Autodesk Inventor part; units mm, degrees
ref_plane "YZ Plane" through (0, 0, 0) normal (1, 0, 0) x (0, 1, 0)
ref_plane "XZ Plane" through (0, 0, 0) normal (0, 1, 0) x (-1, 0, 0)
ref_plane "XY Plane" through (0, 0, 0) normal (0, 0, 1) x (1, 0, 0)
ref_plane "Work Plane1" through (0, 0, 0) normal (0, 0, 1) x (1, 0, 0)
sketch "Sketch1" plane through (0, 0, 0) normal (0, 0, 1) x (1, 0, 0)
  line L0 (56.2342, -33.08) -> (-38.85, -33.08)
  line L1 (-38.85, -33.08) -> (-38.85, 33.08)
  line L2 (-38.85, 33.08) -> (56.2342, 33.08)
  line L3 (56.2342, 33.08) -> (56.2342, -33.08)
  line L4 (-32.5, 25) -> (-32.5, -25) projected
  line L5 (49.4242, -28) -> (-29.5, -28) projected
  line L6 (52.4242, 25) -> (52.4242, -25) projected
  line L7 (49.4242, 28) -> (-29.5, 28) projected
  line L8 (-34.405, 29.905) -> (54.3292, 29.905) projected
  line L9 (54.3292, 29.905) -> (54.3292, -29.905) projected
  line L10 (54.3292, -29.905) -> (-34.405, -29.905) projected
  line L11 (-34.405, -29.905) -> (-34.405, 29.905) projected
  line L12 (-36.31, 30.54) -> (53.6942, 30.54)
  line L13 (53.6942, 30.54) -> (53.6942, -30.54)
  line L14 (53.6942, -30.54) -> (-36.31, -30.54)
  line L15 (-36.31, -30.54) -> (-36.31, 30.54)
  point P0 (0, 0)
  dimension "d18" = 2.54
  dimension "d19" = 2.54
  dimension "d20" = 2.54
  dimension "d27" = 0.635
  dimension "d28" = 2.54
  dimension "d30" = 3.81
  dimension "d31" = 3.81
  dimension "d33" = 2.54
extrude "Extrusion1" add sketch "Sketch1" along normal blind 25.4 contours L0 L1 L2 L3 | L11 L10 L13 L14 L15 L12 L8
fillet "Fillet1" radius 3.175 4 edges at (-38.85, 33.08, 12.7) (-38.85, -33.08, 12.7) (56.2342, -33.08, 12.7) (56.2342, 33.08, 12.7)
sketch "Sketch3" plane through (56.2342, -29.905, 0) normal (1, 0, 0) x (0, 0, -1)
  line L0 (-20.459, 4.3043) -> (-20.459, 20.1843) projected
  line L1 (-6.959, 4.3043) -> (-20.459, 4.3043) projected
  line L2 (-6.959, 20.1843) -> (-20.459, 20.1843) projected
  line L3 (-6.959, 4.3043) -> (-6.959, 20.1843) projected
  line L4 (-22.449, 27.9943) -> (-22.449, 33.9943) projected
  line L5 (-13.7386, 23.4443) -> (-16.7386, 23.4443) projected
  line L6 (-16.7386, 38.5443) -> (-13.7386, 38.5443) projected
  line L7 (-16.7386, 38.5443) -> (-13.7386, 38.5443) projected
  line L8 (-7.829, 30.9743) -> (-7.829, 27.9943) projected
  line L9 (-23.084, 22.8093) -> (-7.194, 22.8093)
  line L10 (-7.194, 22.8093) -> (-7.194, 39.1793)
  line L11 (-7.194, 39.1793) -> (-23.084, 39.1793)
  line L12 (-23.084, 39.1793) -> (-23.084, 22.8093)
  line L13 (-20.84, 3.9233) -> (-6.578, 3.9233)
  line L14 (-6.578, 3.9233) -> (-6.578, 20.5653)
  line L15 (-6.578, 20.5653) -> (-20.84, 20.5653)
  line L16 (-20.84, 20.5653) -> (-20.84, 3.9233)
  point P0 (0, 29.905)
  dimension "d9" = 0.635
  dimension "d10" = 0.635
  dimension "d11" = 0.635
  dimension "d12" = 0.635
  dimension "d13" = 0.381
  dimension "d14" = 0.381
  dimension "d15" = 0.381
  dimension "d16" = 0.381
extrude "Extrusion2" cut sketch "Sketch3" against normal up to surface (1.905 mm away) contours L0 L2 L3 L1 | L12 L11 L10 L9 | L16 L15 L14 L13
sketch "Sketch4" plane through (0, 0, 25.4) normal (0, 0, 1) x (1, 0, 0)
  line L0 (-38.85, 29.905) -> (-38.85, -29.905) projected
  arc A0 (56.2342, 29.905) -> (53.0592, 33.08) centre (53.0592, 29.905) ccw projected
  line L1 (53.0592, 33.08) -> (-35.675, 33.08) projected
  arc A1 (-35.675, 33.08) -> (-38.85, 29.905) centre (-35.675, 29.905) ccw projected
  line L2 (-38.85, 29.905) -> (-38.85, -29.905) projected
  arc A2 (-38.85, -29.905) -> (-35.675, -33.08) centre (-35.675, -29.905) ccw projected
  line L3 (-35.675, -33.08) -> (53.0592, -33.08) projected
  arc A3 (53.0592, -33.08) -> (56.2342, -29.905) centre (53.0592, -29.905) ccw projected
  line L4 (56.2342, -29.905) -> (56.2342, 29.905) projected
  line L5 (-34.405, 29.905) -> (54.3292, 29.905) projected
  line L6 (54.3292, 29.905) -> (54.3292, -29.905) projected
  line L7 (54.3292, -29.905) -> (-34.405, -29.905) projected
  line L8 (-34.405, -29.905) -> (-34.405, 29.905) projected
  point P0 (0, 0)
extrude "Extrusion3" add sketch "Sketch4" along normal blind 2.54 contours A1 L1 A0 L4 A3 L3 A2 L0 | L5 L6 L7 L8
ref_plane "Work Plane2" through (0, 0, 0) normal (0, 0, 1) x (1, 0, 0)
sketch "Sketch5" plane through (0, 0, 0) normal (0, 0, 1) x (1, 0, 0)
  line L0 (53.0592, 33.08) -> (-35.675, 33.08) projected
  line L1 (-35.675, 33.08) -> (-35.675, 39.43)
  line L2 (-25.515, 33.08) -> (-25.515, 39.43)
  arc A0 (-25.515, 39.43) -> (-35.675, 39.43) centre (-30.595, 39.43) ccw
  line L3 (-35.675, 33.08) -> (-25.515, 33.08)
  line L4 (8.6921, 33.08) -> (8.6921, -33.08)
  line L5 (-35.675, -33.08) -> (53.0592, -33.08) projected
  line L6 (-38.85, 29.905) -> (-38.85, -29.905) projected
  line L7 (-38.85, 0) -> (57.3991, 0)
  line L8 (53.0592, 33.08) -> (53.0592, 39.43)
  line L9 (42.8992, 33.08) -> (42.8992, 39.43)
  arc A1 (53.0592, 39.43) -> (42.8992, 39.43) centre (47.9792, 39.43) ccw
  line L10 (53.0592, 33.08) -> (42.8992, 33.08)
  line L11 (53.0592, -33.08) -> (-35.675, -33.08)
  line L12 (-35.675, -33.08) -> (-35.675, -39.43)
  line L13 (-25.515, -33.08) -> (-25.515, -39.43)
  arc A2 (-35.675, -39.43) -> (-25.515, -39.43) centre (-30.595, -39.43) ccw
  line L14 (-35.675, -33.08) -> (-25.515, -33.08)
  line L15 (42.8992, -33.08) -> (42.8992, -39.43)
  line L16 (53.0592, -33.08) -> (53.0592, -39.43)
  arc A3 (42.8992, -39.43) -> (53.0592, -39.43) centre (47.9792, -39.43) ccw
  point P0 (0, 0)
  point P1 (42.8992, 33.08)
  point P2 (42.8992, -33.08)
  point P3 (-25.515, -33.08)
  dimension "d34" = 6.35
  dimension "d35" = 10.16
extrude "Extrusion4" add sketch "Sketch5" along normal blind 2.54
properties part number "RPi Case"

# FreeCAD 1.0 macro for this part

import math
import FreeCAD as App
import Part
import Sketcher

V = App.Vector
Q = App.Units.Quantity


def edges_at(feature, points):
    """Names of the edges that pass closest to the given points."""
    edges = feature.Shape.Edges
    near = lambda p: min(range(len(edges)), key=lambda i: edges[i].distToShape(Part.Vertex(*p))[0])
    return sorted({f"Edge{near(p) + 1}" for p in points})

doc = App.newDocument("Part")
params = doc.addObject("Spreadsheet::Sheet", "Params")
for row, (alias, value) in enumerate([
    ("pad1_length", "1 in"),
    ("fillet_radius", "0.125 in"),
    ("pocket1_length", "0.075 in"),
    ("sketch3_radius", "0.125 in"),
    ("pad2_length", "0.1 in"),
    ("sketch4_radius", "0.2 in"),
    ("sketch4_height", "0.25 in"),
    ("pad3_length", "0.1 in"),
], start=1):
    params.set(f"A{row}", alias)
    params.set(f"B{row}", "=" + value)
    params.setAlias(f"B{row}", alias)

body = doc.addObject("PartDesign::Body", "Body")

# Sketch on XY plane
sketch1 = doc.addObject("Sketcher::SketchObject", "Sketch")
body.addObject(sketch1)
sketch1.AttachmentSupport = (doc.XY_Plane, [""])
sketch1.MapMode = "FlatFace"
sketch1.addGeometry([
    Part.LineSegment(V(-39, -33, 0), V(56, -33, 0)),  # 0
    Part.LineSegment(V(56, -33, 0), V(56, 33, 0)),  # 1
    Part.LineSegment(V(56, 33, 0), V(-39, 33, 0)),  # 2
    Part.LineSegment(V(-39, 33, 0), V(-39, -33, 0)),  # 3
    Part.LineSegment(V(54, -30, 0), V(-34, -30, 0)),  # 4
    Part.LineSegment(V(-34, -30, 0), V(-34, 30, 0)),  # 5
    Part.LineSegment(V(-34, 30, 0), V(54, 30, 0)),  # 6
    Part.LineSegment(V(54, 30, 0), V(54, -30, 0)),  # 7
], False)
sketch1.addConstraint([
    Sketcher.Constraint("Coincident", 0, 2, 1, 1),
    Sketcher.Constraint("Coincident", 1, 2, 2, 1),
    Sketcher.Constraint("Coincident", 2, 2, 3, 1),
    Sketcher.Constraint("Coincident", 3, 2, 0, 1),
    Sketcher.Constraint("Coincident", 4, 2, 5, 1),
    Sketcher.Constraint("Coincident", 5, 2, 6, 1),
    Sketcher.Constraint("Coincident", 6, 2, 7, 1),
    Sketcher.Constraint("Coincident", 7, 2, 4, 1),
    Sketcher.Constraint("Horizontal", 0),
    Sketcher.Constraint("Vertical", 1),
    Sketcher.Constraint("Horizontal", 2),
    Sketcher.Constraint("Vertical", 3),
    Sketcher.Constraint("Horizontal", 4),
    Sketcher.Constraint("Vertical", 5),
    Sketcher.Constraint("Horizontal", 6),
    Sketcher.Constraint("Vertical", 7),
    Sketcher.Constraint("DistanceX", 3, 2, 4, 2, Q("0.175 in")),
    Sketcher.Constraint("DistanceY", 3, 2, 4, 2, Q("0.125 in")),
    Sketcher.Constraint("DistanceY", 5, 2, 2, 2, Q("0.125 in")),
    Sketcher.Constraint("DistanceX", 6, 2, 1, 2, Q("0.075 in")),
    Sketcher.Constraint("DistanceX", 0, 1, 0, 2, 95.0842),
    Sketcher.Constraint("DistanceY", 1, 1, 1, 2, 66.16),
    Sketcher.Constraint("DistanceX", -1, 1, 0, 2, 56.2342),
    Sketcher.Constraint("DistanceY", 0, 2, -1, 1, 33.08),
])
pad1 = doc.addObject("PartDesign::Pad", "Pad")
body.addObject(pad1)
pad1.Profile = sketch1
pad1.setExpression("Length", "Params.pad1_length")
doc.recompute()

fillet = doc.addObject("PartDesign::Fillet", "Fillet")
body.addObject(fillet)
fillet.Base = (pad1, edges_at(pad1, [
    (-38.85, 33.08, 12.7),
    (-38.85, -33.08, 12.7),
    (56.234, -33.08, 12.7),
    (56.234, 33.08, 12.7),
]))
fillet.setExpression("Radius", "Params.fillet_radius")

# Sketch on YZ plane
sketch2 = doc.addObject("Sketcher::SketchObject", "Sketch001")
body.addObject(sketch2)
sketch2.AttachmentSupport = (doc.YZ_Plane, [""])
sketch2.MapMode = "FlatFace"
sketch2.AttachmentOffset = App.Placement(V(0, 0, 56.2342), App.Rotation())
sketch2.addGeometry([
    Part.LineSegment(V(-9, 21, 0), V(-26, 21, 0)),  # 0
    Part.LineSegment(V(-26, 21, 0), V(-26, 7, 0)),  # 1
    Part.LineSegment(V(-26, 7, 0), V(-9, 7, 0)),  # 2
    Part.LineSegment(V(-9, 7, 0), V(-9, 21, 0)),  # 3
    Part.LineSegment(V(9, 23, 0), V(-7, 23, 0)),  # 4
    Part.LineSegment(V(-7, 23, 0), V(-7, 7, 0)),  # 5
    Part.LineSegment(V(-7, 7, 0), V(9, 7, 0)),  # 6
    Part.LineSegment(V(9, 7, 0), V(9, 23, 0)),  # 7
], False)
sketch2.addConstraint([
    Sketcher.Constraint("Coincident", 0, 2, 1, 1),
    Sketcher.Constraint("Coincident", 1, 2, 2, 1),
    Sketcher.Constraint("Coincident", 2, 2, 3, 1),
    Sketcher.Constraint("Coincident", 3, 2, 0, 1),
    Sketcher.Constraint("Coincident", 4, 2, 5, 1),
    Sketcher.Constraint("Coincident", 5, 2, 6, 1),
    Sketcher.Constraint("Coincident", 6, 2, 7, 1),
    Sketcher.Constraint("Coincident", 7, 2, 4, 1),
    Sketcher.Constraint("Horizontal", 0),
    Sketcher.Constraint("Vertical", 1),
    Sketcher.Constraint("Horizontal", 2),
    Sketcher.Constraint("Vertical", 3),
    Sketcher.Constraint("Horizontal", 4),
    Sketcher.Constraint("Vertical", 5),
    Sketcher.Constraint("Horizontal", 6),
    Sketcher.Constraint("Vertical", 7),
    Sketcher.Constraint("DistanceX", 0, 2, 0, 1, Q("0.6552 in")),
    Sketcher.Constraint("DistanceX", 4, 2, 4, 1, Q("0.6445 in")),
    Sketcher.Constraint("DistanceY", 1, 2, 1, 1, Q("0.5615 in")),
    Sketcher.Constraint("DistanceY", 5, 2, 5, 1, Q("0.6256 in")),
    Sketcher.Constraint("DistanceX", 0, 2, -1, 1, Q("1.0229 in")),
    Sketcher.Constraint("DistanceY", -1, 1, 0, 2, 20.84),
    Sketcher.Constraint("DistanceX", 4, 2, -1, 1, 7.0957),
    Sketcher.Constraint("DistanceY", -1, 1, 4, 2, 23.084),
])
pocket1 = doc.addObject("PartDesign::Pocket", "Pocket")
body.addObject(pocket1)
pocket1.Profile = sketch2
pocket1.setExpression("Length", "Params.pocket1_length")

# Sketch on XY plane
sketch3 = doc.addObject("Sketcher::SketchObject", "Sketch002")
body.addObject(sketch3)
sketch3.AttachmentSupport = (doc.XY_Plane, [""])
sketch3.MapMode = "FlatFace"
sketch3.AttachmentOffset = App.Placement(V(0, 0, 1 * 25.4), App.Rotation())
sketch3.addGeometry([
    Part.ArcOfCircle(Part.Circle(V(-35.7, 29.9, 0), V(0, 0, 1), 3.2), math.radians(90), math.radians(180)),  # 0
    Part.LineSegment(V(-38.9, 29.9, 0), V(-38.9, -29.9, 0)),  # 1
    Part.ArcOfCircle(Part.Circle(V(-35.7, -29.9, 0), V(0, 0, 1), 3.2), math.radians(180), math.radians(270)),  # 2
    Part.LineSegment(V(-35.7, -33.1, 0), V(53.1, -33.1, 0)),  # 3
    Part.ArcOfCircle(Part.Circle(V(53.1, -29.9, 0), V(0, 0, 1), 3.2), math.radians(-90), math.radians(0)),  # 4
    Part.LineSegment(V(56.2, -29.9, 0), V(56.2, 29.9, 0)),  # 5
    Part.ArcOfCircle(Part.Circle(V(53.1, 29.9, 0), V(0, 0, 1), 3.2), math.radians(0), math.radians(90)),  # 6
    Part.LineSegment(V(53.1, 33.1, 0), V(-35.7, 33.1, 0)),  # 7
], False)
sketch3.addConstraint([
    Sketcher.Constraint("Tangent", 0, 2, 1, 1),
    Sketcher.Constraint("Tangent", 1, 2, 2, 1),
    Sketcher.Constraint("Tangent", 2, 2, 3, 1),
    Sketcher.Constraint("Tangent", 3, 2, 4, 1),
    Sketcher.Constraint("Tangent", 4, 2, 5, 1),
    Sketcher.Constraint("Tangent", 5, 2, 6, 1),
    Sketcher.Constraint("Tangent", 6, 2, 7, 1),
    Sketcher.Constraint("Tangent", 7, 2, 0, 1),
    Sketcher.Constraint("Vertical", 1),
    Sketcher.Constraint("Horizontal", 3),
    Sketcher.Constraint("Vertical", 5),
    Sketcher.Constraint("Horizontal", 7),
    Sketcher.Constraint("Equal", 0, 2),
    Sketcher.Constraint("Equal", 2, 4),
    Sketcher.Constraint("Equal", 4, 6),
    Sketcher.Constraint("Radius", 0, Q("0.125 in")),
    Sketcher.Constraint("DistanceX", 3, 1, 3, 2, 88.7342),
    Sketcher.Constraint("DistanceY", 1, 2, 1, 1, 59.81),
    Sketcher.Constraint("DistanceX", 0, 3, -1, 1, 35.675),
    Sketcher.Constraint("DistanceY", -1, 1, 0, 3, 29.905),
])
sketch3.setExpression("Constraints[15]", "Params.sketch3_radius")
pad2 = doc.addObject("PartDesign::Pad", "Pad001")
body.addObject(pad2)
pad2.Profile = sketch3
pad2.setExpression("Length", "Params.pad2_length")

# Sketch on XY plane
sketch4 = doc.addObject("Sketcher::SketchObject", "Sketch003")
body.addObject(sketch4)
sketch4.AttachmentSupport = (doc.XY_Plane, [""])
sketch4.MapMode = "FlatFace"
sketch4.addGeometry([
    Part.LineSegment(V(53, -33, 0), V(43, -33, 0)),  # 0
    Part.LineSegment(V(43, -33, 0), V(43, -39, 0)),  # 1
    Part.ArcOfCircle(Part.Circle(V(48, -39, 0), V(0, 0, 1), 5), math.radians(180), math.radians(360)),  # 2
    Part.LineSegment(V(53, -39, 0), V(53, -33, 0)),  # 3
    Part.LineSegment(V(-26, -39, 0), V(-26, -33, 0)),  # 4
    Part.LineSegment(V(-26, -33, 0), V(-36, -33, 0)),  # 5
    Part.LineSegment(V(-36, -33, 0), V(-36, -39, 0)),  # 6
    Part.ArcOfCircle(Part.Circle(V(-31, -39, 0), V(0, 0, 1), 5), math.radians(180), math.radians(360)),  # 7
    Part.LineSegment(V(-36, 33, 0), V(-26, 33, 0)),  # 8
    Part.LineSegment(V(-26, 33, 0), V(-26, 39, 0)),  # 9
    Part.ArcOfCircle(Part.Circle(V(-31, 39, 0), V(0, 0, 1), 5), math.radians(0), math.radians(180)),  # 10
    Part.LineSegment(V(-36, 39, 0), V(-36, 33, 0)),  # 11
    Part.LineSegment(V(43, 33, 0), V(53, 33, 0)),  # 12
    Part.LineSegment(V(53, 33, 0), V(53, 39, 0)),  # 13
    Part.ArcOfCircle(Part.Circle(V(48, 39, 0), V(0, 0, 1), 5), math.radians(0), math.radians(180)),  # 14
    Part.LineSegment(V(43, 39, 0), V(43, 33, 0)),  # 15
], False)
sketch4.addConstraint([
    Sketcher.Constraint("Coincident", 0, 2, 1, 1),
    Sketcher.Constraint("Tangent", 1, 2, 2, 1),
    Sketcher.Constraint("Tangent", 2, 2, 3, 1),
    Sketcher.Constraint("Coincident", 3, 2, 0, 1),
    Sketcher.Constraint("Coincident", 4, 2, 5, 1),
    Sketcher.Constraint("Coincident", 5, 2, 6, 1),
    Sketcher.Constraint("Tangent", 6, 2, 7, 1),
    Sketcher.Constraint("Tangent", 7, 2, 4, 1),
    Sketcher.Constraint("Coincident", 8, 2, 9, 1),
    Sketcher.Constraint("Tangent", 9, 2, 10, 1),
    Sketcher.Constraint("Tangent", 10, 2, 11, 1),
    Sketcher.Constraint("Coincident", 11, 2, 8, 1),
    Sketcher.Constraint("Coincident", 12, 2, 13, 1),
    Sketcher.Constraint("Tangent", 13, 2, 14, 1),
    Sketcher.Constraint("Tangent", 14, 2, 15, 1),
    Sketcher.Constraint("Coincident", 15, 2, 12, 1),
    Sketcher.Constraint("Horizontal", 0),
    Sketcher.Constraint("Vertical", 1),
    Sketcher.Constraint("Vertical", 3),
    Sketcher.Constraint("Vertical", 4),
    Sketcher.Constraint("Horizontal", 5),
    Sketcher.Constraint("Vertical", 6),
    Sketcher.Constraint("Horizontal", 8),
    Sketcher.Constraint("Vertical", 9),
    Sketcher.Constraint("Vertical", 11),
    Sketcher.Constraint("Horizontal", 12),
    Sketcher.Constraint("Vertical", 13),
    Sketcher.Constraint("Vertical", 15),
    Sketcher.Constraint("Equal", 2, 7),
    Sketcher.Constraint("Equal", 7, 10),
    Sketcher.Constraint("Equal", 10, 14),
    Sketcher.Constraint("Symmetric", 7, 3, 10, 3, -1),
    Sketcher.Constraint("Symmetric", 2, 3, 14, 3, -1),
    Sketcher.Constraint("Horizontal", 2, 3, 7, 3),
    Sketcher.Constraint("Horizontal", 3, 2, 4, 2),
    Sketcher.Constraint("Horizontal", 11, 2, 12, 2),
    Sketcher.Constraint("Equal", 6, 9),
    Sketcher.Constraint("Radius", 2, Q("0.2 in")),
    Sketcher.Constraint("DistanceY", 1, 2, 1, 1, Q("0.25 in")),
    Sketcher.Constraint("DistanceX", -1, 1, 2, 3, 47.9792),
    Sketcher.Constraint("DistanceY", 2, 3, -1, 1, 39.43),
    Sketcher.Constraint("DistanceX", 7, 3, -1, 1, 30.595),
])
sketch4.setExpression("Constraints[37]", "Params.sketch4_radius")
sketch4.setExpression("Constraints[38]", "Params.sketch4_height")
pad3 = doc.addObject("PartDesign::Pad", "Pad002")
body.addObject(pad3)
pad3.Profile = sketch4
pad3.setExpression("Length", "Params.pad3_length")

doc.recompute()
